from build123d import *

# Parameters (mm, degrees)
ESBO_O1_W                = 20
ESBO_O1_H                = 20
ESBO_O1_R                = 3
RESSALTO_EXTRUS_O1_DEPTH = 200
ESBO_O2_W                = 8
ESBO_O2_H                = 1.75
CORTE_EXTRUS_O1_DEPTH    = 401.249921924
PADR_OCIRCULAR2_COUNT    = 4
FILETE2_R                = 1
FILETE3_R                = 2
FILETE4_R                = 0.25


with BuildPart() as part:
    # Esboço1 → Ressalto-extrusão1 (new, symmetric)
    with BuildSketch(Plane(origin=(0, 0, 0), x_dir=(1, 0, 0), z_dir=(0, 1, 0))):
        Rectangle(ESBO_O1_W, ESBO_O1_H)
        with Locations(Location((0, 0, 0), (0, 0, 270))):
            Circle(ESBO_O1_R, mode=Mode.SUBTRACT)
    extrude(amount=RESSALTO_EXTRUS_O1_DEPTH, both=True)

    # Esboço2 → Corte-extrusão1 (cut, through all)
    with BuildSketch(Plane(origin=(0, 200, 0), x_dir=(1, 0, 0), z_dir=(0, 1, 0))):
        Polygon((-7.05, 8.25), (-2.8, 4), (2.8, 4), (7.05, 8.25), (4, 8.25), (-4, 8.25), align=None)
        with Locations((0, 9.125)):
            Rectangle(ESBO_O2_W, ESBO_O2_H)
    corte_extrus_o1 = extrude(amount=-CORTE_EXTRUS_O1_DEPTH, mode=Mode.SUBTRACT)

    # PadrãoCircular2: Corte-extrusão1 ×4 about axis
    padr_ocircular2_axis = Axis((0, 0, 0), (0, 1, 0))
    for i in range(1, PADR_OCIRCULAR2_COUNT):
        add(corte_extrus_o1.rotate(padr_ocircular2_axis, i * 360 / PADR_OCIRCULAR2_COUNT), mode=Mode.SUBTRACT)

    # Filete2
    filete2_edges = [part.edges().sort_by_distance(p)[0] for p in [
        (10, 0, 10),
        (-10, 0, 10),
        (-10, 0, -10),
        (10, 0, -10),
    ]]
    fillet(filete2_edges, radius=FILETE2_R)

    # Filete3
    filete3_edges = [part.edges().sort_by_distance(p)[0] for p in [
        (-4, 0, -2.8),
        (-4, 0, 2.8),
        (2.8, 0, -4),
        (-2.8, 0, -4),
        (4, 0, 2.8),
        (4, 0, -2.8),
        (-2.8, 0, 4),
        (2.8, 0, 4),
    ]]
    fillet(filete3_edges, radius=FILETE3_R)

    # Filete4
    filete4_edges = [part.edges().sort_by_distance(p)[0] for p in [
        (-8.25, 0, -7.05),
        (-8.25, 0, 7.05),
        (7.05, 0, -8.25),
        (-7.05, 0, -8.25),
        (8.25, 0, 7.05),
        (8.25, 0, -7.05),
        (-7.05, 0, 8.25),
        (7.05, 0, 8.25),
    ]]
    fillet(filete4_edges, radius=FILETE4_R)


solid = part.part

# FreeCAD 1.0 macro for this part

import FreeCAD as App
import Part
import Sketcher
Q = App.Units.Quantity


def edges_at(feature, points):
    """Names of the edges that pass closest to the given points."""
    edges = feature.Shape.Edges
    near = lambda p: min(range(len(edges)), key=lambda i: edges[i].distToShape(Part.Vertex(*p))[0])
    return sorted({f"Edge{near(p) + 1}" for p in points})


def add_polygon(sketch, points):
    """Adds a closed chain of lines whose ends are joined by coincident constraints."""
    first, n = sketch.GeometryCount, len(points)
    for a, b in zip(points, points[1:] + points[:1]):
        sketch.addGeometry(Part.LineSegment(App.Vector(*a, 0), App.Vector(*b, 0)), False)
    for i in range(n):
        sketch.addConstraint(Sketcher.Constraint("Coincident", first + i, 2, first + (i + 1) % n, 1))

doc = App.newDocument("Part")
body = doc.addObject("PartDesign::Body", "Body")

# Sketch on XZ plane
sketch1 = body.newObject("Sketcher::SketchObject", "Sketch")
sketch1.AttachmentSupport = (doc.getObject("XZ_Plane"), [""])
sketch1.MapMode = "FlatFace"
add_polygon(sketch1, [(-10, -10), (-10, 10), (10, 10), (10, -10)])  # lines 0-3
sketch1.addGeometry(Part.Circle(App.Vector(0, 0, 0), App.Vector(0, 0, 1), 3), False)  # 4
sketch1.addConstraint(Sketcher.Constraint("Vertical", 0))
sketch1.addConstraint(Sketcher.Constraint("Horizontal", 1))
sketch1.addConstraint(Sketcher.Constraint("Vertical", 2))
sketch1.addConstraint(Sketcher.Constraint("Horizontal", 3))
sketch1.addConstraint(Sketcher.Constraint("Coincident", 4, 3, -1, 1))
sketch1.addConstraint(Sketcher.Constraint("Symmetric", 0, 2, 2, 2, -1, 1))
sketch1.addConstraint(Sketcher.Constraint("Equal", 3, 0))
sketch1.addConstraint(Sketcher.Constraint("Diameter", 4, Q("6 mm")))
sketch1.addConstraint(Sketcher.Constraint("DistanceX", 1, 1, 1, 2, Q("20 mm")))
pad1 = body.newObject("PartDesign::Pad", "Pad")
pad1.Profile = sketch1
pad1.Length = 400
pad1.Midplane = True

# Sketch on XZ plane
sketch2 = body.newObject("Sketcher::SketchObject", "Sketch001")
sketch2.AttachmentSupport = (doc.getObject("XZ_Plane"), [""])
sketch2.MapMode = "FlatFace"
sketch2.AttachmentOffset = App.Placement(App.Vector(0, 0, -200), App.Rotation())
add_polygon(sketch2, [(-7.05, -8.25), (-2.8, -4), (2.8, -4), (7.05, -8.25), (4, -8.25), (4, -10), (-4, -10), (-4, -8.25)])  # lines 0-7
sketch2.addConstraint(Sketcher.Constraint("Horizontal", 1))
sketch2.addConstraint(Sketcher.Constraint("Horizontal", 3))
sketch2.addConstraint(Sketcher.Constraint("Vertical", 4))
sketch2.addConstraint(Sketcher.Constraint("Horizontal", 5))
sketch2.addConstraint(Sketcher.Constraint("Vertical", 6))
sketch2.addConstraint(Sketcher.Constraint("Horizontal", 7))
sketch2.addConstraint(Sketcher.Constraint("Symmetric", 3, 2, 6, 2, -2))
sketch2.addConstraint(Sketcher.Constraint("Perpendicular", 0, 2))
sketch2.addConstraint(Sketcher.Constraint("Equal", 3, 7))
sketch2.addConstraint(Sketcher.Constraint("Equal", 0, 2))
sketch2.addConstraint(Sketcher.Constraint("DistanceX", 5, 2, 5, 1, Q("8 mm")))
sketch2.addConstraint(Sketcher.Constraint("DistanceX", 1, 1, 1, 2, Q("5.6 mm")))
sketch2.addConstraint(Sketcher.Constraint("DistanceY", 0, 2, -1, 1, Q("4 mm")))
sketch2.addConstraint(Sketcher.Constraint("DistanceY", 4, 2, -1, 1, Q("10 mm")))
sketch2.addConstraint(Sketcher.Constraint("DistanceX", 3, 2, 3, 1, Q("3.05 mm")))
pocket1 = body.newObject("PartDesign::Pocket", "Pocket")
pocket1.Profile = sketch2
pocket1.Type = "ThroughAll"
pocket1.Reversed = True
doc.recompute()

polarpattern = body.newObject("PartDesign::PolarPattern", "PolarPattern")
polarpattern.Originals = [pocket1]
polarpattern.Axis = (doc.getObject("Y_Axis"), [""])
polarpattern.Angle = 360
polarpattern.Occurrences = 4
body.Tip = polarpattern
doc.recompute()

fillet = body.newObject("PartDesign::Fillet", "Fillet")
fillet.Base = (polarpattern, edges_at(polarpattern, [
    (10, 0, 10),
    (-10, 0, 10),
    (-10, 0, -10),
    (10, 0, -10),
]))
fillet.Radius = 1
doc.recompute()

fillet2 = body.newObject("PartDesign::Fillet", "Fillet001")
fillet2.Base = (fillet, edges_at(fillet, [
    (-4, 0, -2.8),
    (-4, 0, 2.8),
    (2.8, 0, -4),
    (-2.8, 0, -4),
    (4, 0, 2.8),
    (4, 0, -2.8),
    (-2.8, 0, 4),
    (2.8, 0, 4),
]))
fillet2.Radius = 2
doc.recompute()

fillet3 = body.newObject("PartDesign::Fillet", "Fillet002")
fillet3.Base = (fillet2, edges_at(fillet2, [
    (-8.25, 0, -7.05),
    (-8.25, 0, 7.05),
    (7.05, 0, -8.25),
    (-7.05, 0, -8.25),
    (8.25, 0, 7.05),
    (8.25, 0, -7.05),
    (-7.05, 0, 8.25),
    (7.05, 0, 8.25),
]))
fillet3.Radius = 0.25

doc.recompute()
